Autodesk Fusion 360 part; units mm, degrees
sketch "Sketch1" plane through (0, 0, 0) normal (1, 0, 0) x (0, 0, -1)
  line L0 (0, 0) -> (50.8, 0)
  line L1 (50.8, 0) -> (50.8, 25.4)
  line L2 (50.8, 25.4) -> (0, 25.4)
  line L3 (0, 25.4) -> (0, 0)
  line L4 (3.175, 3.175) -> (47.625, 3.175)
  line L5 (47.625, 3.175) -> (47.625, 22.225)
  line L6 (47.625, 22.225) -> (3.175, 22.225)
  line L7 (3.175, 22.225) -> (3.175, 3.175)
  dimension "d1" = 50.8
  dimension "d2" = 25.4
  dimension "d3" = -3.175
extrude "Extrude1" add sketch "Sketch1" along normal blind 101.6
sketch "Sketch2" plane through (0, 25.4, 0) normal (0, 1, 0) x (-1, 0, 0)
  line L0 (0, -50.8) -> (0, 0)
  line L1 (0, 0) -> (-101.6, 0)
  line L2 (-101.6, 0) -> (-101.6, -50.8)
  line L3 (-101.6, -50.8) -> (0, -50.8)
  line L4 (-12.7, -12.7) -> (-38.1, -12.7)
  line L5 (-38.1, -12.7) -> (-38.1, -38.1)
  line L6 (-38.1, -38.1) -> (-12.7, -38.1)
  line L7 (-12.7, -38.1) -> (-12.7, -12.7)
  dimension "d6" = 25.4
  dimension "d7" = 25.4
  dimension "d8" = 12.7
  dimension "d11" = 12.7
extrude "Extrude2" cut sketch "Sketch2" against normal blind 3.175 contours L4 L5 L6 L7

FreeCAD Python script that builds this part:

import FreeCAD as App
import Part
import Sketcher
from FreeCAD import Vector
Q = App.Units.Quantity


def add_polygon(sketch, points):
    """Adds a closed chain of lines whose ends are joined by coincident constraints."""
    first, n = sketch.GeometryCount, len(points)
    for a, b in zip(points, points[1:] + points[:1]):
        sketch.addGeometry(Part.LineSegment(App.Vector(*a, 0), App.Vector(*b, 0)), False)
    for i in range(n):
        sketch.addConstraint(Sketcher.Constraint("Coincident", first + i, 2, first + (i + 1) % n, 1))

doc = App.newDocument("Part")
body = doc.addObject("PartDesign::Body", "Body")

# Sketch on YZ plane
sketch1 = body.newObject("Sketcher::SketchObject", "Sketch")
sketch1.AttachmentSupport = (doc.getObject("YZ_Plane"), [""])
sketch1.MapMode = "FlatFace"
add_polygon(sketch1, [(25.4, 0), (0, 0), (0, -50.8), (25.4, -50.8)])  # lines 0-3
add_polygon(sketch1, [(3.175, -47.625), (3.175, -3.175), (22.225, -3.175), (22.225, -47.625)])  # lines 4-7
sketch1.addConstraint([
    Sketcher.Constraint("Horizontal", 0),
    Sketcher.Constraint("Vertical", 1),
    Sketcher.Constraint("Horizontal", 2),
    Sketcher.Constraint("Vertical", 3),
    Sketcher.Constraint("Vertical", 4),
    Sketcher.Constraint("Horizontal", 5),
    Sketcher.Constraint("Vertical", 6),
    Sketcher.Constraint("Horizontal", 7),
    Sketcher.Constraint("Coincident", 0, 2, -1, 1),
    Sketcher.Constraint("DistanceX", 0, 2, 0, 1, Q("1 in")),
    Sketcher.Constraint("DistanceY", 1, 2, 1, 1, Q("2 in")),
    Sketcher.Constraint("DistanceX", -1, 1, 4, 2, Q("0.125 in")),
    Sketcher.Constraint("DistanceY", 4, 2, -1, 1, Q("0.125 in")),
    Sketcher.Constraint("DistanceX", 5, 2, 3, 2, Q("0.125 in")),
    Sketcher.Constraint("DistanceY", 2, 2, 6, 2, Q("0.125 in")),
])
pad1 = body.newObject("PartDesign::Pad", "Pad")
pad1.Profile = sketch1
pad1.Length = Q("4 in")

# Sketch on XZ plane
sketch2 = body.newObject("Sketcher::SketchObject", "Sketch001")
sketch2.AttachmentSupport = (doc.getObject("XZ_Plane"), [""])
sketch2.MapMode = "FlatFace"
sketch2.AttachmentOffset = App.Placement(Vector(0, 0, -1 * 25.4), App.Rotation())
add_polygon(sketch2, [(12.7, -38.1), (12.7, -12.7), (38.1, -12.7), (38.1, -38.1)])  # lines 0-3
sketch2.addConstraint([
    Sketcher.Constraint("Vertical", 0),
    Sketcher.Constraint("Horizontal", 1),
    Sketcher.Constraint("Vertical", 2),
    Sketcher.Constraint("Horizontal", 3),
    Sketcher.Constraint("Equal", 3, 0),
    Sketcher.Constraint("DistanceX", 1, 1, 1, 2, Q("1 in")),
    Sketcher.Constraint("DistanceX", -1, 1, 0, 2, Q("0.5 in")),
    Sketcher.Constraint("DistanceY", 0, 2, -1, 1, Q("0.5 in")),
])
pocket1 = body.newObject("PartDesign::Pocket", "Pocket")
pocket1.Profile = sketch2
pocket1.Length = Q("0.125 in")
pocket1.Reversed = True

doc.recompute()
